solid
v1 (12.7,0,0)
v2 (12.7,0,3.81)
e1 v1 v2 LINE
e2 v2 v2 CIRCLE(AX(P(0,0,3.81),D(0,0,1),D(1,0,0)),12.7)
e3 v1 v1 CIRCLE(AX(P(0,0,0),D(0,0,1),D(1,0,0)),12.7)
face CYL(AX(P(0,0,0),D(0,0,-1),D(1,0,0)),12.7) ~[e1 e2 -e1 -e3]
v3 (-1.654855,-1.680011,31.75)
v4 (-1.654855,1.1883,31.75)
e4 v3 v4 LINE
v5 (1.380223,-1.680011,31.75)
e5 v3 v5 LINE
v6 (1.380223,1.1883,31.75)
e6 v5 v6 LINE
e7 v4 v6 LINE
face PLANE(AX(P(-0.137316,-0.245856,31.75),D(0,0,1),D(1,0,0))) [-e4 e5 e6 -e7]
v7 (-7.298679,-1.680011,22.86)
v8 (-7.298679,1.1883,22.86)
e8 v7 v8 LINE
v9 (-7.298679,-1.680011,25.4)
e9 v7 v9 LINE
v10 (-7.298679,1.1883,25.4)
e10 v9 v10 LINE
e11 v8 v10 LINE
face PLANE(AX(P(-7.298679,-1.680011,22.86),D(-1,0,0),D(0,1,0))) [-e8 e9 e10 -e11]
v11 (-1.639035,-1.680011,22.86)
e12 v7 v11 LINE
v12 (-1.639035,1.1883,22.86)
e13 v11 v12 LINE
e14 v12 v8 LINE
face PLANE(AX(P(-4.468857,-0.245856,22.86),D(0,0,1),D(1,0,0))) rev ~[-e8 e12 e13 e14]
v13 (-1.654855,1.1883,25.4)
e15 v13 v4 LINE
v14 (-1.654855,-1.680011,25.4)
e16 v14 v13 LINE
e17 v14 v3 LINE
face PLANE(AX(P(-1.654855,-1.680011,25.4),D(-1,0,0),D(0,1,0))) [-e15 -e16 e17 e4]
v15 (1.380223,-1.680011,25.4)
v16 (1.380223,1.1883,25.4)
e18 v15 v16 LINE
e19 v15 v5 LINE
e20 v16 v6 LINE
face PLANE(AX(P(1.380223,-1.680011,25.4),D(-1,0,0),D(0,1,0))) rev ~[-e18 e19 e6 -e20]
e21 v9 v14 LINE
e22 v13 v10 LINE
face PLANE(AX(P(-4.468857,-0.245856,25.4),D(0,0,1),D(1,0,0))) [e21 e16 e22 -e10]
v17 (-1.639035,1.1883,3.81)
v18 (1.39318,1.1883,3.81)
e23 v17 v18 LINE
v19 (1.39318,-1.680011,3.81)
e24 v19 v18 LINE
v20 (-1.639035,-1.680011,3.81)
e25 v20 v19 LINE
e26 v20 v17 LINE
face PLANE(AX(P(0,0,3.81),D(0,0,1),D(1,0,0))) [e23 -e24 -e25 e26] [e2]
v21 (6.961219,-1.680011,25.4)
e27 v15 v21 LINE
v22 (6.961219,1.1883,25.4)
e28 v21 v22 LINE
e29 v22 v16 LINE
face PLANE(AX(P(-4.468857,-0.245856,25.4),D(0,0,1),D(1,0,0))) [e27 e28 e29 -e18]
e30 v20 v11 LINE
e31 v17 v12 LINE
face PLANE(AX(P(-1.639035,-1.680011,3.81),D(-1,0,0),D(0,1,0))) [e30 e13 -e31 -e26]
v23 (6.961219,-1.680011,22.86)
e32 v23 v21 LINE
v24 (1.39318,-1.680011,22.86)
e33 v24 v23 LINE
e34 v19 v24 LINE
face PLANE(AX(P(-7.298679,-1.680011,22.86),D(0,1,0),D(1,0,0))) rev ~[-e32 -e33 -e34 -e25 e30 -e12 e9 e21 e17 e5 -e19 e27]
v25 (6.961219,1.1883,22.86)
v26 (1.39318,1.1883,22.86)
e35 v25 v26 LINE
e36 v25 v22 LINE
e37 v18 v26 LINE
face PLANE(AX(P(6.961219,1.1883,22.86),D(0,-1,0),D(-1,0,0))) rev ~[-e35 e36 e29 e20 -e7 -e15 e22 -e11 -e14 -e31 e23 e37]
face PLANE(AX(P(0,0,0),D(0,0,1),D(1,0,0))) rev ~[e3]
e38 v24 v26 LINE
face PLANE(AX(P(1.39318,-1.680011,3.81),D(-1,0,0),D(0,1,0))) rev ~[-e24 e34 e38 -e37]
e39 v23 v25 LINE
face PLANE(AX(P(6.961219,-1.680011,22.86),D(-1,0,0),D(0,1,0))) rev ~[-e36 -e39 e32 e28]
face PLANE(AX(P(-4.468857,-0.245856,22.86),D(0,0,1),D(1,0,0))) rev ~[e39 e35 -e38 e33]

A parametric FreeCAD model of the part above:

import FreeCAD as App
import Part
import Sketcher

V = App.Vector
Q = App.Units.Quantity

doc = App.newDocument("Part")
body = doc.addObject("PartDesign::Body", "Body")

# Sketch on XY plane
sketch1 = body.newObject("Sketcher::SketchObject", "Sketch")
sketch1.AttachmentSupport = (doc.getObject("XY_Plane"), [""])
sketch1.MapMode = "FlatFace"
sketch1.addGeometry(Part.Circle(V(0, 0, 0), V(0, 0, 1), 13), False)
sketch1.addConstraint(Sketcher.Constraint("Coincident", 0, 3, -1, 1))
sketch1.addConstraint(Sketcher.Constraint("Diameter", 0, Q("1 in")))
pad1 = body.newObject("PartDesign::Pad", "Pad")
pad1.Profile = sketch1
pad1.Length = Q("0.15 in")

# Sketch on XY plane
sketch2 = body.newObject("Sketcher::SketchObject", "Sketch001")
sketch2.AttachmentSupport = (doc.getObject("XY_Plane"), [""])
sketch2.MapMode = "FlatFace"
sketch2.AttachmentOffset = App.Placement(V(0, 0, 0.15 * 25.4), App.Rotation())
sketch2.addGeometry(Part.LineSegment(V(-1.6, 1.2, 0), V(-1.6, -1.7, 0)), False)
sketch2.addGeometry(Part.LineSegment(V(-1.6, -1.7, 0), V(1.4, -1.7, 0)), False)
sketch2.addGeometry(Part.LineSegment(V(1.4, -1.7, 0), V(1.4, 1.2, 0)), False)
sketch2.addGeometry(Part.LineSegment(V(1.4, 1.2, 0), V(-1.6, 1.2, 0)), False)
sketch2.addConstraint(Sketcher.Constraint("Coincident", 0, 2, 1, 1))
sketch2.addConstraint(Sketcher.Constraint("Coincident", 1, 2, 2, 1))
sketch2.addConstraint(Sketcher.Constraint("Coincident", 2, 2, 3, 1))
sketch2.addConstraint(Sketcher.Constraint("Coincident", 3, 2, 0, 1))
sketch2.addConstraint(Sketcher.Constraint("Vertical", 0))
sketch2.addConstraint(Sketcher.Constraint("Horizontal", 1))
sketch2.addConstraint(Sketcher.Constraint("Vertical", 2))
sketch2.addConstraint(Sketcher.Constraint("Horizontal", 3))
sketch2.addConstraint(Sketcher.Constraint("DistanceY", 0, 2, 0, 1, Q("2.868311 mm")))
sketch2.addConstraint(Sketcher.Constraint("DistanceY", -1, 1, 2, 2, Q("1.1883 mm")))
sketch2.addConstraint(Sketcher.Constraint("DistanceX", 1, 1, 1, 2, Q("3.032215 mm")))
sketch2.addConstraint(Sketcher.Constraint("DistanceX", -1, 1, 1, 2, Q("1.39318 mm")))
pad2 = body.newObject("PartDesign::Pad", "Pad001")
pad2.Profile = sketch2
pad2.Length = Q("0.75 in")

# Sketch on XY plane
sketch3 = body.newObject("Sketcher::SketchObject", "Sketch002")
sketch3.AttachmentSupport = (doc.getObject("XY_Plane"), [""])
sketch3.MapMode = "FlatFace"
sketch3.AttachmentOffset = App.Placement(V(0, 0, 0.9 * 25.4), App.Rotation())
sketch3.addGeometry(Part.LineSegment(V(-7.3, 1.2, 0), V(-7.3, -1.7, 0)), False)
sketch3.addGeometry(Part.LineSegment(V(-7.3, -1.7, 0), V(7, -1.7, 0)), False)
sketch3.addGeometry(Part.LineSegment(V(7, -1.7, 0), V(7, 1.2, 0)), False)
sketch3.addGeometry(Part.LineSegment(V(7, 1.2, 0), V(-7.3, 1.2, 0)), False)
sketch3.addConstraint(Sketcher.Constraint("Coincident", 0, 2, 1, 1))
sketch3.addConstraint(Sketcher.Constraint("Coincident", 1, 2, 2, 1))
sketch3.addConstraint(Sketcher.Constraint("Coincident", 2, 2, 3, 1))
sketch3.addConstraint(Sketcher.Constraint("Coincident", 3, 2, 0, 1))
sketch3.addConstraint(Sketcher.Constraint("Vertical", 0))
sketch3.addConstraint(Sketcher.Constraint("Horizontal", 1))
sketch3.addConstraint(Sketcher.Constraint("Vertical", 2))
sketch3.addConstraint(Sketcher.Constraint("Horizontal", 3))
sketch3.addConstraint(Sketcher.Constraint("DistanceX", 1, 1, 1, 2, Q("14.259898 mm")))
sketch3.addConstraint(Sketcher.Constraint("DistanceY", 0, 2, 0, 1, Q("2.868311 mm")))
sketch3.addConstraint(Sketcher.Constraint("DistanceY", -1, 1, 2, 2, Q("1.1883 mm")))
sketch3.addConstraint(Sketcher.Constraint("DistanceX", 0, 2, -1, 1, Q("7.298679 mm")))
pad3 = body.newObject("PartDesign::Pad", "Pad002")
pad3.Profile = sketch3
pad3.Length = Q("0.1 in")

# Sketch on XY plane
sketch4 = body.newObject("Sketcher::SketchObject", "Sketch003")
sketch4.AttachmentSupport = (doc.getObject("XY_Plane"), [""])
sketch4.MapMode = "FlatFace"
sketch4.AttachmentOffset = App.Placement(V(0, 0, 1 * 25.4), App.Rotation())
sketch4.addGeometry(Part.LineSegment(V(-1.7, 1.2, 0), V(-1.7, -1.7, 0)), False)
sketch4.addGeometry(Part.LineSegment(V(-1.7, -1.7, 0), V(1.4, -1.7, 0)), False)
sketch4.addGeometry(Part.LineSegment(V(1.4, -1.7, 0), V(1.4, 1.2, 0)), False)
sketch4.addGeometry(Part.LineSegment(V(1.4, 1.2, 0), V(-1.7, 1.2, 0)), False)
sketch4.addConstraint(Sketcher.Constraint("Coincident", 0, 2, 1, 1))
sketch4.addConstraint(Sketcher.Constraint("Coincident", 1, 2, 2, 1))
sketch4.addConstraint(Sketcher.Constraint("Coincident", 2, 2, 3, 1))
sketch4.addConstraint(Sketcher.Constraint("Coincident", 3, 2, 0, 1))
sketch4.addConstraint(Sketcher.Constraint("Vertical", 0))
sketch4.addConstraint(Sketcher.Constraint("Horizontal", 1))
sketch4.addConstraint(Sketcher.Constraint("Vertical", 2))
sketch4.addConstraint(Sketcher.Constraint("Horizontal", 3))
sketch4.addConstraint(Sketcher.Constraint("DistanceX", 1, 1, 1, 2, Q("3.035078 mm")))
sketch4.addConstraint(Sketcher.Constraint("DistanceY", 0, 2, 0, 1, Q("2.868311 mm")))
sketch4.addConstraint(Sketcher.Constraint("DistanceY", -1, 1, 2, 2, Q("1.1883 mm")))
sketch4.addConstraint(Sketcher.Constraint("DistanceX", 0, 2, -1, 1, Q("1.654855 mm")))
pad4 = body.newObject("PartDesign::Pad", "Pad003")
pad4.Profile = sketch4
pad4.Length = Q("0.25 in")

doc.recompute()
